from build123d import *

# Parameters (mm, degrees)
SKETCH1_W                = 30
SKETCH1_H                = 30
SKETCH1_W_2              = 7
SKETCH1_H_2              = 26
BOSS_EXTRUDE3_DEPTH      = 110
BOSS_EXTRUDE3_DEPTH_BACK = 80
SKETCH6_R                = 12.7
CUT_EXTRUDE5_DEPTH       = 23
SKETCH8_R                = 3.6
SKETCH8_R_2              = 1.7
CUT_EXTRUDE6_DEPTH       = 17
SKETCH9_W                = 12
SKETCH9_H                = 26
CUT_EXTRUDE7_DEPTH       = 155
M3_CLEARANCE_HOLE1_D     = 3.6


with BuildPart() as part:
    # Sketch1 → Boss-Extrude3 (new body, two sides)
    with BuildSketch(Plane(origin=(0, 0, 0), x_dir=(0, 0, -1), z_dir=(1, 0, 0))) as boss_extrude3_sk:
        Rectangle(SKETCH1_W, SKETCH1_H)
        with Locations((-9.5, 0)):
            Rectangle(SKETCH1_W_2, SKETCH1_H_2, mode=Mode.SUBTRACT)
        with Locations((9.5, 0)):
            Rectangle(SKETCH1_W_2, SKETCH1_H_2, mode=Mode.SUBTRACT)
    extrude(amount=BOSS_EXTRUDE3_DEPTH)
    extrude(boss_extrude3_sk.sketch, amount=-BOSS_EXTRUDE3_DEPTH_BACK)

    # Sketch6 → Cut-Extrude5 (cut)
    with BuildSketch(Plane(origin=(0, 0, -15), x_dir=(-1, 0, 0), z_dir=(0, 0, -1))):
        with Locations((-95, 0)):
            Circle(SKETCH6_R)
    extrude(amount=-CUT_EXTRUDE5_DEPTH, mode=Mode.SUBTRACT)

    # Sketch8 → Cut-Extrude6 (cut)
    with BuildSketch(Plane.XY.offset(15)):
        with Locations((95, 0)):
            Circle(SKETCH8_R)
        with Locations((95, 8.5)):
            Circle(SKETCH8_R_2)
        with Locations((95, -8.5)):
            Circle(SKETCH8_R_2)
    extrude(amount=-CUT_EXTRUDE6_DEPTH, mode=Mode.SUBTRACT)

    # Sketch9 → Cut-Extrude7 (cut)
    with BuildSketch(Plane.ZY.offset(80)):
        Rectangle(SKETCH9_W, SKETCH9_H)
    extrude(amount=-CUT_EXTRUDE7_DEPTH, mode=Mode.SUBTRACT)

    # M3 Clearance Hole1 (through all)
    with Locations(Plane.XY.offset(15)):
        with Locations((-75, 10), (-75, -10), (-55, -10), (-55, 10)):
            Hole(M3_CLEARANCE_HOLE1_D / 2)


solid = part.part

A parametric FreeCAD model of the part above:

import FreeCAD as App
import Part
import Sketcher

doc = App.newDocument("Part")
body = doc.addObject("PartDesign::Body", "Body")

sketch1 = body.newObject("Sketcher::SketchObject", "Sketch")
sketch1.AttachmentSupport = (doc.getObject("YZ_Plane"), [""])
sketch1.MapMode = "FlatFace"
sketch1.addGeometry(Part.LineSegment(App.Vector(15, 15, 0), App.Vector(-15, 15, 0)), False)
sketch1.addGeometry(Part.LineSegment(App.Vector(-15, 15, 0), App.Vector(-15, -15, 0)), False)
sketch1.addGeometry(Part.LineSegment(App.Vector(-15, -15, 0), App.Vector(15, -15, 0)), False)
sketch1.addGeometry(Part.LineSegment(App.Vector(15, -15, 0), App.Vector(15, 15, 0)), False)
sketch1.addGeometry(Part.LineSegment(App.Vector(-13, 6, 0), App.Vector(-13, 13, 0)), False)
sketch1.addGeometry(Part.LineSegment(App.Vector(-13, 13, 0), App.Vector(13, 13, 0)), False)
sketch1.addGeometry(Part.LineSegment(App.Vector(13, 13, 0), App.Vector(13, 6, 0)), False)
sketch1.addGeometry(Part.LineSegment(App.Vector(13, 6, 0), App.Vector(-13, 6, 0)), False)
sketch1.addGeometry(Part.LineSegment(App.Vector(-13, -13, 0), App.Vector(-13, -6, 0)), False)
sketch1.addGeometry(Part.LineSegment(App.Vector(-13, -6, 0), App.Vector(13, -6, 0)), False)
sketch1.addGeometry(Part.LineSegment(App.Vector(13, -6, 0), App.Vector(13, -13, 0)), False)
sketch1.addGeometry(Part.LineSegment(App.Vector(13, -13, 0), App.Vector(-13, -13, 0)), False)
sketch1.addConstraint(Sketcher.Constraint("Coincident", 0, 2, 1, 1))
sketch1.addConstraint(Sketcher.Constraint("Coincident", 1, 2, 2, 1))
sketch1.addConstraint(Sketcher.Constraint("Coincident", 2, 2, 3, 1))
sketch1.addConstraint(Sketcher.Constraint("Coincident", 3, 2, 0, 1))
sketch1.addConstraint(Sketcher.Constraint("Coincident", 4, 2, 5, 1))
sketch1.addConstraint(Sketcher.Constraint("Coincident", 5, 2, 6, 1))
sketch1.addConstraint(Sketcher.Constraint("Coincident", 6, 2, 7, 1))
sketch1.addConstraint(Sketcher.Constraint("Coincident", 7, 2, 4, 1))
sketch1.addConstraint(Sketcher.Constraint("Coincident", 8, 2, 9, 1))
sketch1.addConstraint(Sketcher.Constraint("Coincident", 9, 2, 10, 1))
sketch1.addConstraint(Sketcher.Constraint("Coincident", 10, 2, 11, 1))
sketch1.addConstraint(Sketcher.Constraint("Coincident", 11, 2, 8, 1))
sketch1.addConstraint(Sketcher.Constraint("Horizontal", 0))
sketch1.addConstraint(Sketcher.Constraint("Vertical", 1))
sketch1.addConstraint(Sketcher.Constraint("Horizontal", 2))
sketch1.addConstraint(Sketcher.Constraint("Vertical", 3))
sketch1.addConstraint(Sketcher.Constraint("Vertical", 4))
sketch1.addConstraint(Sketcher.Constraint("Horizontal", 5))
sketch1.addConstraint(Sketcher.Constraint("Vertical", 6))
sketch1.addConstraint(Sketcher.Constraint("Horizontal", 7))
sketch1.addConstraint(Sketcher.Constraint("Vertical", 8))
sketch1.addConstraint(Sketcher.Constraint("Horizontal", 9))
sketch1.addConstraint(Sketcher.Constraint("Vertical", 10))
sketch1.addConstraint(Sketcher.Constraint("Horizontal", 11))
sketch1.addConstraint(Sketcher.Constraint("Symmetric", 0, 2, 2, 2, -1, 1))
sketch1.addConstraint(Sketcher.Constraint("Symmetric", 6, 2, 8, 2, -1, 1))
sketch1.addConstraint(Sketcher.Constraint("Symmetric", 4, 2, 10, 2, -1, 1))
sketch1.addConstraint(Sketcher.Constraint("Vertical", 7, 2, 8, 2))
sketch1.addConstraint(Sketcher.Constraint("Equal", 2, 1))
sketch1.addConstraint(Sketcher.Constraint("DistanceX", 0, 2, 0, 1, 30.0))
sketch1.addConstraint(Sketcher.Constraint("DistanceX", 5, 1, 5, 2, 26.0))
sketch1.addConstraint(Sketcher.Constraint("DistanceY", 4, 1, 4, 2, 7.0))
sketch1.addConstraint(Sketcher.Constraint("DistanceY", -1, 1, 4, 2, 13.0))
pad1 = body.newObject("PartDesign::Pad", "Pad")
pad1.Profile = sketch1
pad1.Type = "TwoLengths"
pad1.Length = 110
pad1.Length2 = 80

sketch2 = body.newObject("Sketcher::SketchObject", "Sketch001")
sketch2.AttachmentSupport = (doc.getObject("XY_Plane"), [""])
sketch2.MapMode = "FlatFace"
sketch2.AttachmentOffset = App.Placement(App.Vector(0, 0, -15), App.Rotation())
sketch2.addGeometry(Part.Circle(App.Vector(95, 0, 0), App.Vector(0, 0, 1), 13), False)
sketch2.addConstraint(Sketcher.Constraint("PointOnObject", 0, 3, -1))
sketch2.addConstraint(Sketcher.Constraint("Diameter", 0, 25.4))
sketch2.addConstraint(Sketcher.Constraint("DistanceX", -1, 1, 0, 3, 95.0))
pocket1 = body.newObject("PartDesign::Pocket", "Pocket")
pocket1.Profile = sketch2
pocket1.Length = 23
pocket1.Reversed = True

sketch3 = body.newObject("Sketcher::SketchObject", "Sketch002")
sketch3.AttachmentSupport = (doc.getObject("XY_Plane"), [""])
sketch3.MapMode = "FlatFace"
sketch3.AttachmentOffset = App.Placement(App.Vector(0, 0, 15), App.Rotation())
sketch3.addGeometry(Part.Circle(App.Vector(95, 0, 0), App.Vector(0, 0, 1), 3.6), False)
sketch3.addGeometry(Part.Circle(App.Vector(95, 8.5, 0), App.Vector(0, 0, 1), 1.7), False)
sketch3.addGeometry(Part.Circle(App.Vector(95, -8.5, 0), App.Vector(0, 0, 1), 1.7), False)
sketch3.addConstraint(Sketcher.Constraint("Equal", 1, 2))
sketch3.addConstraint(Sketcher.Constraint("Symmetric", 1, 3, 2, 3, -1))
sketch3.addConstraint(Sketcher.Constraint("PointOnObject", 0, 3, -1))
sketch3.addConstraint(Sketcher.Constraint("Vertical", 0, 3, 1, 3))
sketch3.addConstraint(Sketcher.Constraint("Diameter", 0, 7.2))
sketch3.addConstraint(Sketcher.Constraint("Diameter", 1, 3.4))
sketch3.addConstraint(Sketcher.Constraint("DistanceX", -1, 1, 0, 3, 95.0))
sketch3.addConstraint(Sketcher.Constraint("DistanceY", 2, 3, 1, 3, 17.0))
pocket2 = body.newObject("PartDesign::Pocket", "Pocket001")
pocket2.Profile = sketch3
pocket2.Length = 17

sketch4 = body.newObject("Sketcher::SketchObject", "Sketch003")
sketch4.AttachmentSupport = (doc.getObject("YZ_Plane"), [""])
sketch4.MapMode = "FlatFace"
sketch4.AttachmentOffset = App.Placement(App.Vector(0, 0, -80), App.Rotation())
sketch4.addGeometry(Part.LineSegment(App.Vector(13, -6, 0), App.Vector(-13, -6, 0)), False)
sketch4.addGeometry(Part.LineSegment(App.Vector(-13, -6, 0), App.Vector(-13, 6, 0)), False)
sketch4.addGeometry(Part.LineSegment(App.Vector(-13, 6, 0), App.Vector(13, 6, 0)), False)
sketch4.addGeometry(Part.LineSegment(App.Vector(13, 6, 0), App.Vector(13, -6, 0)), False)
sketch4.addConstraint(Sketcher.Constraint("Coincident", 0, 2, 1, 1))
sketch4.addConstraint(Sketcher.Constraint("Coincident", 1, 2, 2, 1))
sketch4.addConstraint(Sketcher.Constraint("Coincident", 2, 2, 3, 1))
sketch4.addConstraint(Sketcher.Constraint("Coincident", 3, 2, 0, 1))
sketch4.addConstraint(Sketcher.Constraint("Horizontal", 0))
sketch4.addConstraint(Sketcher.Constraint("Vertical", 1))
sketch4.addConstraint(Sketcher.Constraint("Horizontal", 2))
sketch4.addConstraint(Sketcher.Constraint("Vertical", 3))
sketch4.addConstraint(Sketcher.Constraint("Symmetric", 0, 2, 2, 2, -1, 1))
sketch4.addConstraint(Sketcher.Constraint("DistanceX", 0, 2, 0, 1, 26.0))
sketch4.addConstraint(Sketcher.Constraint("DistanceY", 1, 1, 1, 2, 12.0))
pocket3 = body.newObject("PartDesign::Pocket", "Pocket002")
pocket3.Profile = sketch4
pocket3.Length = 155
pocket3.Reversed = True

sketch5 = body.newObject("Sketcher::SketchObject", "Sketch004")
sketch5.AttachmentSupport = (doc.getObject("XY_Plane"), [""])
sketch5.MapMode = "FlatFace"
sketch5.AttachmentOffset = App.Placement(App.Vector(0, 0, 15), App.Rotation())
sketch5.addGeometry(Part.Circle(App.Vector(-75, 10, 0), App.Vector(0, 0, 1), 1.8), False)
sketch5.addGeometry(Part.Circle(App.Vector(-75, -10, 0), App.Vector(0, 0, 1), 1.8), False)
sketch5.addGeometry(Part.Circle(App.Vector(-55, -10, 0), App.Vector(0, 0, 1), 1.8), False)
sketch5.addGeometry(Part.Circle(App.Vector(-55, 10, 0), App.Vector(0, 0, 1), 1.8), False)
sketch5.addConstraint(Sketcher.Constraint("Equal", 0, 1))
sketch5.addConstraint(Sketcher.Constraint("Equal", 1, 2))
sketch5.addConstraint(Sketcher.Constraint("Equal", 2, 3))
sketch5.addConstraint(Sketcher.Constraint("Symmetric", 0, 3, 1, 3, -1))
sketch5.addConstraint(Sketcher.Constraint("Symmetric", 2, 3, 3, 3, -1))
sketch5.addConstraint(Sketcher.Constraint("Horizontal", 1, 3, 2, 3))
sketch5.addConstraint(Sketcher.Constraint("Diameter", 0, 3.6))
sketch5.addConstraint(Sketcher.Constraint("DistanceX", 0, 3, -1, 1, 75.0))
sketch5.addConstraint(Sketcher.Constraint("DistanceY", -1, 1, 0, 3, 10.0))
sketch5.addConstraint(Sketcher.Constraint("DistanceX", 2, 3, -1, 1, 55.0))
doc.recompute()
hole = body.newObject("PartDesign::Hole", "Hole")
hole.Profile = sketch5
hole.ThreadType = "None"
hole.Diameter = 3.6
hole.DepthType = "ThroughAll"

doc.recompute()
